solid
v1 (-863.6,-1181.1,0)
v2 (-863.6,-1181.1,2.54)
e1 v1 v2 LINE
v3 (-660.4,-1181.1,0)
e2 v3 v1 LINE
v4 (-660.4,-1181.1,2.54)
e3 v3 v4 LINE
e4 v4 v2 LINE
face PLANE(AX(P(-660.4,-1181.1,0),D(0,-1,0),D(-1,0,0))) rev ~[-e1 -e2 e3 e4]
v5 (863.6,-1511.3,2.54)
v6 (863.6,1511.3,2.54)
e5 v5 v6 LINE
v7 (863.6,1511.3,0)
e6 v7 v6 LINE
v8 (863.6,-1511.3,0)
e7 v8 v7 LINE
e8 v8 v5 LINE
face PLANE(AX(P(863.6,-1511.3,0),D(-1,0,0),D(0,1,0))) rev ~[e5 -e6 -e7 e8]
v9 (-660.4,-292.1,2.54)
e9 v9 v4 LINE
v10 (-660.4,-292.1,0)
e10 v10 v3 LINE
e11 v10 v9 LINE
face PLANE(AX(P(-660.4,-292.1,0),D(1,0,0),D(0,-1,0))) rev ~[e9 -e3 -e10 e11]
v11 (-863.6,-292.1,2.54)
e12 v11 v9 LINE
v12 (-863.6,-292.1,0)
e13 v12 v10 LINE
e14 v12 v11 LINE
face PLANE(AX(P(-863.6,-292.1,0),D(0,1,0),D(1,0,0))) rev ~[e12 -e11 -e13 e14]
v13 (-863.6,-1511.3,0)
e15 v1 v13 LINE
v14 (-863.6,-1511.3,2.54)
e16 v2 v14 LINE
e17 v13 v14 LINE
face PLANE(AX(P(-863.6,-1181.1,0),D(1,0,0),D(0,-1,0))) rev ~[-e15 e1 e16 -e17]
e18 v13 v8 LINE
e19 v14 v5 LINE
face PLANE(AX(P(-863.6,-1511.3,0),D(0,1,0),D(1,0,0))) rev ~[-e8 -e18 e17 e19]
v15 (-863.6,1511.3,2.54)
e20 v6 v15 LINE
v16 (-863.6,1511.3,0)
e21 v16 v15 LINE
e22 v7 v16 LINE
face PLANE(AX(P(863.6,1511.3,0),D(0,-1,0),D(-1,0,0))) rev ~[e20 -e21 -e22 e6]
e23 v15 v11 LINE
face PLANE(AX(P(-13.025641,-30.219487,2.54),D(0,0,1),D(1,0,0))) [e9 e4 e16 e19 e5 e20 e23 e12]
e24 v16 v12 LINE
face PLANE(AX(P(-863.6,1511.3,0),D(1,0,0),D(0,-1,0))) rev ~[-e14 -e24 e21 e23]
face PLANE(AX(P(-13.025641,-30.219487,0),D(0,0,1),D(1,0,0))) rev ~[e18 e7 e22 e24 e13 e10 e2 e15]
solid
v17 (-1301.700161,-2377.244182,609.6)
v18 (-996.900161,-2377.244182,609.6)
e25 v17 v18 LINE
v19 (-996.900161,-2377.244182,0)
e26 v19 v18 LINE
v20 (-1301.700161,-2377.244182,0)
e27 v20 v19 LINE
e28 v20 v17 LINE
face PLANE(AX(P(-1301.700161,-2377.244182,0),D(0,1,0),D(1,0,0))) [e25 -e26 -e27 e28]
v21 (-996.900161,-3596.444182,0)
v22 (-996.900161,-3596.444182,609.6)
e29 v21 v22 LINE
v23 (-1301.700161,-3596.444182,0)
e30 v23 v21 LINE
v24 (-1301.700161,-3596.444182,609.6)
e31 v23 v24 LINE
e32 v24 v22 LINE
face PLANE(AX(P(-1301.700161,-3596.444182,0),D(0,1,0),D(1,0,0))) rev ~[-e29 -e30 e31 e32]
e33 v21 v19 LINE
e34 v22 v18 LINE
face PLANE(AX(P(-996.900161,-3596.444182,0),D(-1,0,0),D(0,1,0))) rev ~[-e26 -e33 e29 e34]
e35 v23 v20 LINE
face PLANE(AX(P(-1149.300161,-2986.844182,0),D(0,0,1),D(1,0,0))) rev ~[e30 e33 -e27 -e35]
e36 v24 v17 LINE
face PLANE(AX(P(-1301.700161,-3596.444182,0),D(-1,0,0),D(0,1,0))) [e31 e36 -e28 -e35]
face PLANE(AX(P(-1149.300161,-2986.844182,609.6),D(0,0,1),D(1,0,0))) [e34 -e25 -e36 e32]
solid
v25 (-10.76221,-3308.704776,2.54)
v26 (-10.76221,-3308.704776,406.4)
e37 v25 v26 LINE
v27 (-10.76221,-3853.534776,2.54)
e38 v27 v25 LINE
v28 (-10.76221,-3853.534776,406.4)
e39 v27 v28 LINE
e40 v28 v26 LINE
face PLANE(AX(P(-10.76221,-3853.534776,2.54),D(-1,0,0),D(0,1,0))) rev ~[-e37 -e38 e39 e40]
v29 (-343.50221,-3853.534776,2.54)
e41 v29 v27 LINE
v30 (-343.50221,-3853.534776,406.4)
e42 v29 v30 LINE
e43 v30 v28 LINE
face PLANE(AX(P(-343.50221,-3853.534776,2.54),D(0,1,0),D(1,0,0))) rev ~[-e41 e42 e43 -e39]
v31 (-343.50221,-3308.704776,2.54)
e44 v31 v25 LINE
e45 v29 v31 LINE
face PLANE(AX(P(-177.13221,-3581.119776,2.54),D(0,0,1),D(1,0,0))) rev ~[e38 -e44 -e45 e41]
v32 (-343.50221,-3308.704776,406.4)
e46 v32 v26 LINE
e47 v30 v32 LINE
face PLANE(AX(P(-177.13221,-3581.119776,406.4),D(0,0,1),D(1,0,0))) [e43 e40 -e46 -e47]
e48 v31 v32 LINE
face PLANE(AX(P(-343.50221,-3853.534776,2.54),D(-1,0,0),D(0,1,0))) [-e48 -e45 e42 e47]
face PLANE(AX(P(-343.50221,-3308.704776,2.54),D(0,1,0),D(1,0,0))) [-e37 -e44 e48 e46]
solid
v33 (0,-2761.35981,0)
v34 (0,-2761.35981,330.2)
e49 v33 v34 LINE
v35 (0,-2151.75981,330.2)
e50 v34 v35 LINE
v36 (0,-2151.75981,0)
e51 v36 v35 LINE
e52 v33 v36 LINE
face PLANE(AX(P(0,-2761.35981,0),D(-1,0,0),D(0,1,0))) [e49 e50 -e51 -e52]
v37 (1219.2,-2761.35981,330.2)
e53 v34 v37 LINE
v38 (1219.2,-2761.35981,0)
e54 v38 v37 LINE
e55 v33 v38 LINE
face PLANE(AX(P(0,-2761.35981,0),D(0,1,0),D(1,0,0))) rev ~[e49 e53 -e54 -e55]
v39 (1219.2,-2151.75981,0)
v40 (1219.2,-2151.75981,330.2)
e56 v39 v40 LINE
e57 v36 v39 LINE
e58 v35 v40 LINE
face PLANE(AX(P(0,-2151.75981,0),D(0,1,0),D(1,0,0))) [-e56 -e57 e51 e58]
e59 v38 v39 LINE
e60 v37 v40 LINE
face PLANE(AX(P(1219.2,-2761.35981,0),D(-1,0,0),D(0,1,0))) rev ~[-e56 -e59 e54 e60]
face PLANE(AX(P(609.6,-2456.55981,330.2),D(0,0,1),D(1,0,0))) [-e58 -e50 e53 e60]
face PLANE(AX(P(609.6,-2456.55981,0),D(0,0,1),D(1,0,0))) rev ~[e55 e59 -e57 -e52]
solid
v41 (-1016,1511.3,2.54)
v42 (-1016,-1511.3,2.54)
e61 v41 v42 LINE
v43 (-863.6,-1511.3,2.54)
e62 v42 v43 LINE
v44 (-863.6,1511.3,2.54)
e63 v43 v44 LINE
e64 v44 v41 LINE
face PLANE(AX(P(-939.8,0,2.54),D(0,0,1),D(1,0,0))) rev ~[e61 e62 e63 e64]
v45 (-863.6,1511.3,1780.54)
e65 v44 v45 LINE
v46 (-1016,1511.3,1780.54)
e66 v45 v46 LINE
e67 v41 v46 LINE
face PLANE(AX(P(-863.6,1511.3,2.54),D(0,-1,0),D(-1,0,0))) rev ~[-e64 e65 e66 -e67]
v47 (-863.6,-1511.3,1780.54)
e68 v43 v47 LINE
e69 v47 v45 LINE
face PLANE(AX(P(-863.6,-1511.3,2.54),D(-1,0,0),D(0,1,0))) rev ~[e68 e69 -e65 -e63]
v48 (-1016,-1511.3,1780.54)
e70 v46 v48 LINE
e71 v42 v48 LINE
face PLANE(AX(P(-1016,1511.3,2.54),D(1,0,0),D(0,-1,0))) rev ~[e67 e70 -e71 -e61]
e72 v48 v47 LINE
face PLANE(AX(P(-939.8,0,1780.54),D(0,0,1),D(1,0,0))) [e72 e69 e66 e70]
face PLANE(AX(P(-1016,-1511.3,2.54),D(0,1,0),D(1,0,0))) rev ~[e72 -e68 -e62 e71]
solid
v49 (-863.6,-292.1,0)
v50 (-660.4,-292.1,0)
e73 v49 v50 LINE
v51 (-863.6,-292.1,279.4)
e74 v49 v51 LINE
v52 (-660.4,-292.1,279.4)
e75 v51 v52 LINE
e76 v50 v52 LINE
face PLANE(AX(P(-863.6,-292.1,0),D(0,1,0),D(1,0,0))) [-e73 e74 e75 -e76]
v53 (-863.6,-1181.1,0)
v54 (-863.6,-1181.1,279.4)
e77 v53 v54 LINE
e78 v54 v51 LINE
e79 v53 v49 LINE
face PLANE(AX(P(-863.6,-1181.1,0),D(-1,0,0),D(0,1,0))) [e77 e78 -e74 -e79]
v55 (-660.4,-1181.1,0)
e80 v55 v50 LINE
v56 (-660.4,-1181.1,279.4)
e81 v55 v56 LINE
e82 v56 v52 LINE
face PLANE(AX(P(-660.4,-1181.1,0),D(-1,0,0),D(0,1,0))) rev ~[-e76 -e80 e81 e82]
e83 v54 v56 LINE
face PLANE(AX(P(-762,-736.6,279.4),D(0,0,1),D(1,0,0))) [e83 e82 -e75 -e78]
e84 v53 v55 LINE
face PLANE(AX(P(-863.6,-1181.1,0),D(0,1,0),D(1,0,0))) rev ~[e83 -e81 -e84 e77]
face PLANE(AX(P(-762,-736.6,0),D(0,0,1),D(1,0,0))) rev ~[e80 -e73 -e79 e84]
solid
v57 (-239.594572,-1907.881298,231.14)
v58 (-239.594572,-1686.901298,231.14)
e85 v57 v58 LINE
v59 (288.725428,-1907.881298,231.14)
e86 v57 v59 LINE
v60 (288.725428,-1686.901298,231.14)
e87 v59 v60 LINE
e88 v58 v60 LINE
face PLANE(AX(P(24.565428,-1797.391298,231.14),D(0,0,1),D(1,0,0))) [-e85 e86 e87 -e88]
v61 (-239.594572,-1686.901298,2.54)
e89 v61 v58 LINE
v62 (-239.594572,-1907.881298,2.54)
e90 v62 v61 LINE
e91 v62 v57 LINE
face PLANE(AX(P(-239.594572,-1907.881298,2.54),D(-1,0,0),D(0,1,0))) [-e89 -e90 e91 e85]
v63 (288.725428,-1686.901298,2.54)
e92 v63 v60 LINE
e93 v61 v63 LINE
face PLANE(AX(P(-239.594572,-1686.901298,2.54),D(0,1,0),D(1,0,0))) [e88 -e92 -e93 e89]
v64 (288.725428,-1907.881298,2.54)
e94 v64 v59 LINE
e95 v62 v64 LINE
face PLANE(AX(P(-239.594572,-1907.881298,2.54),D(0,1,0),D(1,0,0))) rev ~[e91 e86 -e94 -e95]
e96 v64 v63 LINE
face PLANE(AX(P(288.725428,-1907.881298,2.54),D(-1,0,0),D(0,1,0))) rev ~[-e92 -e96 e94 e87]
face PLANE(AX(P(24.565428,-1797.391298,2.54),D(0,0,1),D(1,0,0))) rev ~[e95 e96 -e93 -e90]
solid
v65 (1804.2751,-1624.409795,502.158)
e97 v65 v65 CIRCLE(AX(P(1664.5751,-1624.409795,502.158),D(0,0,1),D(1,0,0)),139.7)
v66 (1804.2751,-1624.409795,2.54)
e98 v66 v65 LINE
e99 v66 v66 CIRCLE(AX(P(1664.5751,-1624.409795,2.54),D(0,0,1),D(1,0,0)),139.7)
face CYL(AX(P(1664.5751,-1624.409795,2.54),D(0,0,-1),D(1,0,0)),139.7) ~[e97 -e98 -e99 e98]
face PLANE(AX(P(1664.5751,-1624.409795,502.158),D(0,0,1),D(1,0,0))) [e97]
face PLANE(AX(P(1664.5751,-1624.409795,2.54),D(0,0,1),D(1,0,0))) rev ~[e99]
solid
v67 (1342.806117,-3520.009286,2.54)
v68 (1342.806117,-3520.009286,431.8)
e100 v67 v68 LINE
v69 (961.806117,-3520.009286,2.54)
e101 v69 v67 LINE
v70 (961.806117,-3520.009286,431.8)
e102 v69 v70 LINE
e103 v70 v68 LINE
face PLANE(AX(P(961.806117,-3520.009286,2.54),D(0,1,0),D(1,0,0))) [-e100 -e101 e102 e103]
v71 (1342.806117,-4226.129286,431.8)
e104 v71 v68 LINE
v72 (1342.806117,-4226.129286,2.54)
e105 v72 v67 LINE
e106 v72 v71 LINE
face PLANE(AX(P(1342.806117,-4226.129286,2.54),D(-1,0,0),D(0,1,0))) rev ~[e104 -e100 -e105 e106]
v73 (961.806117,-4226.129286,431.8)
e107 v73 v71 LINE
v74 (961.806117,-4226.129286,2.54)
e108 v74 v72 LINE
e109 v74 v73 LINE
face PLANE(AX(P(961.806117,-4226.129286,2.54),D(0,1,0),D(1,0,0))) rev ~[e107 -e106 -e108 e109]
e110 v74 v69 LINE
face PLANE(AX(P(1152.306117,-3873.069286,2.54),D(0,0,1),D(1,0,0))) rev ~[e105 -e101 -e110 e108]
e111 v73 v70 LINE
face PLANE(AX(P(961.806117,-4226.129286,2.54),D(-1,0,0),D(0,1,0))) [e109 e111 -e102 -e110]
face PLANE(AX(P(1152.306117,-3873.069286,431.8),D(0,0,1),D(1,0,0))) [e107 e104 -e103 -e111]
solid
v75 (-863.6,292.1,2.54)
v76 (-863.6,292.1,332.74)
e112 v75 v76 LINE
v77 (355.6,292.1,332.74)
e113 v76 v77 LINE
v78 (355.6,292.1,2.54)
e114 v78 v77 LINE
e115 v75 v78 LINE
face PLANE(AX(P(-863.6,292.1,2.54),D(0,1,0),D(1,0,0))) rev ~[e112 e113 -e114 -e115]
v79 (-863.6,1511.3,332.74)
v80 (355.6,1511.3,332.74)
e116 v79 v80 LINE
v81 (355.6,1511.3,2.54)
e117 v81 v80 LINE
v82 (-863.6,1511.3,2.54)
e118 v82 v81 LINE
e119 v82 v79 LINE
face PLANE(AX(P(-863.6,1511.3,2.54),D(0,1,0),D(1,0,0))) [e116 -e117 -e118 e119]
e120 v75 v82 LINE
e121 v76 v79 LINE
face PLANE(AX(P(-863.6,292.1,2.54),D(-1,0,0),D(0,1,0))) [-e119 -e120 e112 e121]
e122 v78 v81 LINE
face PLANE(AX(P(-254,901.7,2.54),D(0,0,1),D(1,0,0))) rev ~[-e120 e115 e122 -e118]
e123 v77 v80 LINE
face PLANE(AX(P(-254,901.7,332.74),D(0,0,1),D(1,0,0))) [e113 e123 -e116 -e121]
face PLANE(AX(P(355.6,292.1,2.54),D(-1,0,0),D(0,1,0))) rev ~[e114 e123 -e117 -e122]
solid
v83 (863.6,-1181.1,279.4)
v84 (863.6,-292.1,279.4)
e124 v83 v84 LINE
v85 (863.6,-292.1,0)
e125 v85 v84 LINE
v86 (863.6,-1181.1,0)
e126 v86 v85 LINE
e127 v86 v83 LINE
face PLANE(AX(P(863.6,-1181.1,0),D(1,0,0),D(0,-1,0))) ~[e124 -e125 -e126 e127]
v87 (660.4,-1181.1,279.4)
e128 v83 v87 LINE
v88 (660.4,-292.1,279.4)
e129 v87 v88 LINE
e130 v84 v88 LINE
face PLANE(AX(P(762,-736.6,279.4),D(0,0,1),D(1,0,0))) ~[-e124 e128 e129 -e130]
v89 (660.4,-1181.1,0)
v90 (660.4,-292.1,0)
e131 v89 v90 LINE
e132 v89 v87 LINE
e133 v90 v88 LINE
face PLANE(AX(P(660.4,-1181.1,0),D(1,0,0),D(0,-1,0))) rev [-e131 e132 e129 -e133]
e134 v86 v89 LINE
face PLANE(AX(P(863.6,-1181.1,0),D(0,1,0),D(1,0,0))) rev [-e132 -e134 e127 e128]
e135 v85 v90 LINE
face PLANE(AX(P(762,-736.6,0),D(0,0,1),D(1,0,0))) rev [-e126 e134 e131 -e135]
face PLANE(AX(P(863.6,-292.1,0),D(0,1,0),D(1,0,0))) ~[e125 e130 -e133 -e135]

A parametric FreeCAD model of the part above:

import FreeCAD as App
import Part
import Sketcher
Q = App.Units.Quantity


def add_polygon(sketch, points):
    """Adds a closed chain of lines whose ends are joined by coincident constraints."""
    first, n = sketch.GeometryCount, len(points)
    for a, b in zip(points, points[1:] + points[:1]):
        sketch.addGeometry(Part.LineSegment(App.Vector(*a, 0), App.Vector(*b, 0)), False)
    for i in range(n):
        sketch.addConstraint(Sketcher.Constraint("Coincident", first + i, 2, first + (i + 1) % n, 1))

doc = App.newDocument("Part")
params = doc.addObject("Spreadsheet::Sheet", "Params")
for row, (alias, value) in enumerate([
    ("sketch1_width", "8 in"),
    ("sketch1_height", "35 in"),
    ("pad1_length", "11 in"),
    ("sketch2_width", "68 in"),
    ("sketch2_width2", "8 in"),
    ("sketch2_height", "13 in"),
    ("sketch2_height2", "119 in"),
    ("sketch2_height3", "71 in"),
    ("pad2_length", "0.1 in"),
    ("sketch3_width", "6 in"),
    ("sketch3_height", "119 in"),
    ("pad3_length", "70 in"),
    ("sketch4_width", "48 in"),
    ("pad4_length", "13 in"),
    ("sketch5_width", "12 in"),
    ("sketch5_height", "48 in"),
    ("pad5_length", "24 in"),
    ("sketch6_width", "20.8 in"),
    ("sketch6_height", "8.7 in"),
    ("pad6_length", "9 in"),
    ("sketch7_width", "48 in"),
    ("sketch7_height", "24 in"),
    ("pad7_length", "13 in"),
    ("sketch8_width", "13.1 in"),
    ("sketch8_height", "21.45 in"),
    ("pad8_length", "15.9 in"),
    ("sketch9_width", "15 in"),
    ("sketch9_height", "27.8 in"),
    ("pad9_length", "16.9 in"),
    ("sketch10_diameter", "11 in"),
    ("pad10_length", "19.67 in"),
], start=1):
    params.set(f"A{row}", alias)
    params.set(f"B{row}", "=" + value)
    params.setAlias(f"B{row}", alias)

body = doc.addObject("PartDesign::Body", "Body")

sketch1 = doc.addObject("Sketcher::SketchObject", "Sketch")
body.addObject(sketch1)
sketch1.AttachmentSupport = (doc.XY_Plane, [""])
sketch1.MapMode = "FlatFace"
add_polygon(sketch1, [(-864, -292), (-864, -1181), (-660, -1181), (-660, -292)])
sketch1.addConstraint([
    Sketcher.Constraint("Vertical", 0),
    Sketcher.Constraint("Horizontal", 1),
    Sketcher.Constraint("Vertical", 2),
    Sketcher.Constraint("Horizontal", 3),
    Sketcher.Constraint("DistanceX", 1, 1, 1, 2, Q("8 in")),
    Sketcher.Constraint("DistanceY", 0, 2, 0, 1, Q("35 in")),
    Sketcher.Constraint("DistanceX", 0, 2, -1, 1, Q("34 in")),
    Sketcher.Constraint("DistanceY", 0, 2, -1, 1, Q("46.5 in")),
])
sketch1.setExpression("Constraints[8]", "Params.sketch1_width")
sketch1.setExpression("Constraints[9]", "Params.sketch1_height")
pad1 = doc.addObject("PartDesign::Pad", "Pad")
body.addObject(pad1)
pad1.Profile = sketch1
pad1.setExpression("Length", "Params.pad1_length")
body2 = doc.addObject("PartDesign::Body", "Body001")
doc.recompute()

mirroring = doc.addObject("Part::Mirroring", "Mirroring")
mirroring.Source = body
mirroring.Base = App.Vector(0, 0, 0)
mirroring.Normal = App.Vector(1, 0, 0)
body2.BaseFeature = mirroring
doc.recompute()
body3 = doc.addObject("PartDesign::Body", "Body002")

sketch2 = doc.addObject("Sketcher::SketchObject", "Sketch001")
body3.addObject(sketch2)
sketch2.AttachmentSupport = (doc.getObject("XY_Plane002"), [""])
sketch2.MapMode = "FlatFace"
add_polygon(sketch2, [(-864, -1181), (-864, -1511), (864, -1511), (864, 1511), (-864, 1511), (-864, -292), (-660, -292), (-660, -1181)])
sketch2.addConstraint([
    Sketcher.Constraint("Vertical", 0),
    Sketcher.Constraint("Horizontal", 1),
    Sketcher.Constraint("Vertical", 2),
    Sketcher.Constraint("Horizontal", 3),
    Sketcher.Constraint("Vertical", 4),
    Sketcher.Constraint("Horizontal", 5),
    Sketcher.Constraint("Vertical", 6),
    Sketcher.Constraint("Horizontal", 7),
    Sketcher.Constraint("Symmetric", 0, 2, 2, 2, -1, 1),
    Sketcher.Constraint("Vertical", 0, 2, 3, 2),
    Sketcher.Constraint("DistanceX", 1, 1, 1, 2, Q("68 in")),
    Sketcher.Constraint("DistanceX", 5, 1, 5, 2, Q("8 in")),
    Sketcher.Constraint("DistanceY", 0, 2, 0, 1, Q("13 in")),
    Sketcher.Constraint("DistanceY", 2, 1, 2, 2, Q("119 in")),
    Sketcher.Constraint("DistanceY", 4, 2, 4, 1, Q("71 in")),
])
sketch2.setExpression("Constraints[18]", "Params.sketch2_width")
sketch2.setExpression("Constraints[19]", "Params.sketch2_width2")
sketch2.setExpression("Constraints[20]", "Params.sketch2_height")
sketch2.setExpression("Constraints[21]", "Params.sketch2_height2")
sketch2.setExpression("Constraints[22]", "Params.sketch2_height3")
pad2 = doc.addObject("PartDesign::Pad", "Pad001")
body3.addObject(pad2)
pad2.Profile = sketch2
pad2.setExpression("Length", "Params.pad2_length")
body4 = doc.addObject("PartDesign::Body", "Body003")

sketch3 = doc.addObject("Sketcher::SketchObject", "Sketch002")
body4.addObject(sketch3)
sketch3.AttachmentSupport = (doc.getObject("XY_Plane003"), [""])
sketch3.MapMode = "FlatFace"
sketch3.AttachmentOffset = App.Placement(App.Vector(0, 0, 0.1 * 25.4), App.Rotation())
add_polygon(sketch3, [(-1016, -1511), (-864, -1511), (-864, 1511), (-1016, 1511)])
sketch3.addConstraint([
    Sketcher.Constraint("Horizontal", 0),
    Sketcher.Constraint("Vertical", 1),
    Sketcher.Constraint("Horizontal", 2),
    Sketcher.Constraint("Vertical", 3),
    Sketcher.Constraint("DistanceX", 0, 1, 0, 2, Q("6 in")),
    Sketcher.Constraint("DistanceY", 1, 1, 1, 2, Q("119 in")),
    Sketcher.Constraint("DistanceX", 0, 2, -1, 1, Q("34 in")),
    Sketcher.Constraint("DistanceY", 0, 2, -1, 1, Q("59.5 in")),
])
sketch3.setExpression("Constraints[8]", "Params.sketch3_width")
sketch3.setExpression("Constraints[9]", "Params.sketch3_height")
pad3 = doc.addObject("PartDesign::Pad", "Pad002")
body4.addObject(pad3)
pad3.Profile = sketch3
pad3.setExpression("Length", "Params.pad3_length")
body5 = doc.addObject("PartDesign::Body", "Body004")

sketch4 = doc.addObject("Sketcher::SketchObject", "Sketch003")
body5.addObject(sketch4)
sketch4.AttachmentSupport = (doc.getObject("XY_Plane004"), [""])
sketch4.MapMode = "FlatFace"
sketch4.AttachmentOffset = App.Placement(App.Vector(0, 0, 0.1 * 25.4), App.Rotation())
add_polygon(sketch4, [(-864, 1511), (-864, 292), (356, 292), (356, 1511)])
sketch4.addConstraint([
    Sketcher.Constraint("Vertical", 0),
    Sketcher.Constraint("Horizontal", 1),
    Sketcher.Constraint("Vertical", 2),
    Sketcher.Constraint("Horizontal", 3),
    Sketcher.Constraint("Equal", 3, 0),
    Sketcher.Constraint("DistanceX", 1, 1, 1, 2, Q("48 in")),
    Sketcher.Constraint("DistanceX", 0, 2, -1, 1, Q("34 in")),
    Sketcher.Constraint("DistanceY", -1, 1, 0, 2, Q("11.5 in")),
])
sketch4.setExpression("Constraints[9]", "Params.sketch4_width")
pad4 = doc.addObject("PartDesign::Pad", "Pad003")
body5.addObject(pad4)
pad4.Profile = sketch4
pad4.setExpression("Length", "Params.pad4_length")
body6 = doc.addObject("PartDesign::Body", "Body005")

sketch5 = doc.addObject("Sketcher::SketchObject", "Sketch004")
body6.addObject(sketch5)
sketch5.AttachmentSupport = (doc.getObject("XY_Plane005"), [""])
sketch5.MapMode = "FlatFace"
add_polygon(sketch5, [(-1302, -2377), (-1302, -3596), (-997, -3596), (-997, -2377)])
sketch5.addConstraint([
    Sketcher.Constraint("Vertical", 0),
    Sketcher.Constraint("Horizontal", 1),
    Sketcher.Constraint("Vertical", 2),
    Sketcher.Constraint("Horizontal", 3),
    Sketcher.Constraint("DistanceX", 1, 1, 1, 2, Q("12 in")),
    Sketcher.Constraint("DistanceY", 0, 2, 0, 1, Q("48 in")),
    Sketcher.Constraint("DistanceX", 0, 2, -1, 1, Q("1301.700161 mm")),
    Sketcher.Constraint("DistanceY", 2, 2, -1, 1, Q("2377.244182 mm")),
])
sketch5.setExpression("Constraints[8]", "Params.sketch5_width")
sketch5.setExpression("Constraints[9]", "Params.sketch5_height")
pad5 = doc.addObject("PartDesign::Pad", "Pad004")
body6.addObject(pad5)
pad5.Profile = sketch5
pad5.setExpression("Length", "Params.pad5_length")
body7 = doc.addObject("PartDesign::Body", "Body006")

sketch6 = doc.addObject("Sketcher::SketchObject", "Sketch005")
body7.addObject(sketch6)
sketch6.AttachmentSupport = (doc.getObject("XY_Plane006"), [""])
sketch6.MapMode = "FlatFace"
sketch6.AttachmentOffset = App.Placement(App.Vector(0, 0, 0.1 * 25.4), App.Rotation())
add_polygon(sketch6, [(-240, -1687), (-240, -1908), (289, -1908), (289, -1687)])
sketch6.addConstraint([
    Sketcher.Constraint("Vertical", 0),
    Sketcher.Constraint("Horizontal", 1),
    Sketcher.Constraint("Vertical", 2),
    Sketcher.Constraint("Horizontal", 3),
    Sketcher.Constraint("DistanceX", 1, 1, 1, 2, Q("20.8 in")),
    Sketcher.Constraint("DistanceY", 0, 2, 0, 1, Q("8.7 in")),
    Sketcher.Constraint("DistanceY", 0, 2, -1, 1, Q("1907.881298 mm")),
    Sketcher.Constraint("DistanceX", 0, 2, -1, 1, Q("239.594572 mm")),
])
sketch6.setExpression("Constraints[8]", "Params.sketch6_width")
sketch6.setExpression("Constraints[9]", "Params.sketch6_height")
pad6 = doc.addObject("PartDesign::Pad", "Pad005")
body7.addObject(pad6)
pad6.Profile = sketch6
pad6.setExpression("Length", "Params.pad6_length")
body8 = doc.addObject("PartDesign::Body", "Body007")

sketch7 = doc.addObject("Sketcher::SketchObject", "Sketch006")
body8.addObject(sketch7)
sketch7.AttachmentSupport = (doc.getObject("XY_Plane007"), [""])
sketch7.MapMode = "FlatFace"
add_polygon(sketch7, [(0, -2152), (0, -2761), (1219, -2761), (1219, -2152)])
sketch7.addConstraint([
    Sketcher.Constraint("Vertical", 0),
    Sketcher.Constraint("Horizontal", 1),
    Sketcher.Constraint("Vertical", 2),
    Sketcher.Constraint("Horizontal", 3),
    Sketcher.Constraint("PointOnObject", 0, 2, -2),
    Sketcher.Constraint("DistanceX", 1, 1, 1, 2, Q("48 in")),
    Sketcher.Constraint("DistanceY", 0, 2, 0, 1, Q("24 in")),
    Sketcher.Constraint("DistanceY", 0, 2, -1, 1, Q("2761.35981 mm")),
])
sketch7.setExpression("Constraints[9]", "Params.sketch7_width")
sketch7.setExpression("Constraints[10]", "Params.sketch7_height")
pad7 = doc.addObject("PartDesign::Pad", "Pad006")
body8.addObject(pad7)
pad7.Profile = sketch7
pad7.setExpression("Length", "Params.pad7_length")
body9 = doc.addObject("PartDesign::Body", "Body008")

sketch8 = doc.addObject("Sketcher::SketchObject", "Sketch007")
body9.addObject(sketch8)
sketch8.AttachmentSupport = (doc.getObject("XY_Plane008"), [""])
sketch8.MapMode = "FlatFace"
sketch8.AttachmentOffset = App.Placement(App.Vector(0, 0, 0.1 * 25.4), App.Rotation())
add_polygon(sketch8, [(-344, -3309), (-344, -3854), (-11, -3854), (-11, -3309)])
sketch8.addConstraint([
    Sketcher.Constraint("Vertical", 0),
    Sketcher.Constraint("Horizontal", 1),
    Sketcher.Constraint("Vertical", 2),
    Sketcher.Constraint("Horizontal", 3),
    Sketcher.Constraint("DistanceX", 1, 1, 1, 2, Q("13.1 in")),
    Sketcher.Constraint("DistanceY", 0, 2, 0, 1, Q("21.45 in")),
    Sketcher.Constraint("DistanceX", 0, 2, -1, 1, Q("343.50221 mm")),
    Sketcher.Constraint("DistanceY", 0, 2, -1, 1, Q("3853.534776 mm")),
])
sketch8.setExpression("Constraints[8]", "Params.sketch8_width")
sketch8.setExpression("Constraints[9]", "Params.sketch8_height")
pad8 = doc.addObject("PartDesign::Pad", "Pad007")
body9.addObject(pad8)
pad8.Profile = sketch8
pad8.setExpression("Length", "Params.pad8_length")
body10 = doc.addObject("PartDesign::Body", "Body009")

sketch9 = doc.addObject("Sketcher::SketchObject", "Sketch008")
body10.addObject(sketch9)
sketch9.AttachmentSupport = (doc.getObject("XY_Plane009"), [""])
sketch9.MapMode = "FlatFace"
sketch9.AttachmentOffset = App.Placement(App.Vector(0, 0, 0.1 * 25.4), App.Rotation())
add_polygon(sketch9, [(962, -3520), (962, -4226), (1343, -4226), (1343, -3520)])
sketch9.addConstraint([
    Sketcher.Constraint("Vertical", 0),
    Sketcher.Constraint("Horizontal", 1),
    Sketcher.Constraint("Vertical", 2),
    Sketcher.Constraint("Horizontal", 3),
    Sketcher.Constraint("DistanceX", 1, 1, 1, 2, Q("15 in")),
    Sketcher.Constraint("DistanceY", 0, 2, 0, 1, Q("27.8 in")),
    Sketcher.Constraint("DistanceX", -1, 1, 0, 2, Q("961.806117 mm")),
    Sketcher.Constraint("DistanceY", 0, 2, -1, 1, Q("4226.129286 mm")),
])
sketch9.setExpression("Constraints[8]", "Params.sketch9_width")
sketch9.setExpression("Constraints[9]", "Params.sketch9_height")
pad9 = doc.addObject("PartDesign::Pad", "Pad008")
body10.addObject(pad9)
pad9.Profile = sketch9
pad9.setExpression("Length", "Params.pad9_length")
body11 = doc.addObject("PartDesign::Body", "Body010")

sketch10 = doc.addObject("Sketcher::SketchObject", "Sketch009")
body11.addObject(sketch10)
sketch10.AttachmentSupport = (doc.getObject("XY_Plane010"), [""])
sketch10.MapMode = "FlatFace"
sketch10.AttachmentOffset = App.Placement(App.Vector(0, 0, 0.1 * 25.4), App.Rotation())
sketch10.addGeometry(Part.Circle(App.Vector(1665, -1624, 0), App.Vector(0, 0, 1), 140), False)
sketch10.addConstraint([
    Sketcher.Constraint("Diameter", 0, Q("11 in")),
    Sketcher.Constraint("DistanceX", -1, 1, 0, 3, Q("1664.5751 mm")),
    Sketcher.Constraint("DistanceY", 0, 3, -1, 1, Q("1624.409795 mm")),
])
sketch10.setExpression("Constraints[0]", "Params.sketch10_diameter")
pad10 = doc.addObject("PartDesign::Pad", "Pad009")
body11.addObject(pad10)
pad10.Profile = sketch10
pad10.setExpression("Length", "Params.pad10_length")
mirroring.Visibility = False

doc.recompute()
